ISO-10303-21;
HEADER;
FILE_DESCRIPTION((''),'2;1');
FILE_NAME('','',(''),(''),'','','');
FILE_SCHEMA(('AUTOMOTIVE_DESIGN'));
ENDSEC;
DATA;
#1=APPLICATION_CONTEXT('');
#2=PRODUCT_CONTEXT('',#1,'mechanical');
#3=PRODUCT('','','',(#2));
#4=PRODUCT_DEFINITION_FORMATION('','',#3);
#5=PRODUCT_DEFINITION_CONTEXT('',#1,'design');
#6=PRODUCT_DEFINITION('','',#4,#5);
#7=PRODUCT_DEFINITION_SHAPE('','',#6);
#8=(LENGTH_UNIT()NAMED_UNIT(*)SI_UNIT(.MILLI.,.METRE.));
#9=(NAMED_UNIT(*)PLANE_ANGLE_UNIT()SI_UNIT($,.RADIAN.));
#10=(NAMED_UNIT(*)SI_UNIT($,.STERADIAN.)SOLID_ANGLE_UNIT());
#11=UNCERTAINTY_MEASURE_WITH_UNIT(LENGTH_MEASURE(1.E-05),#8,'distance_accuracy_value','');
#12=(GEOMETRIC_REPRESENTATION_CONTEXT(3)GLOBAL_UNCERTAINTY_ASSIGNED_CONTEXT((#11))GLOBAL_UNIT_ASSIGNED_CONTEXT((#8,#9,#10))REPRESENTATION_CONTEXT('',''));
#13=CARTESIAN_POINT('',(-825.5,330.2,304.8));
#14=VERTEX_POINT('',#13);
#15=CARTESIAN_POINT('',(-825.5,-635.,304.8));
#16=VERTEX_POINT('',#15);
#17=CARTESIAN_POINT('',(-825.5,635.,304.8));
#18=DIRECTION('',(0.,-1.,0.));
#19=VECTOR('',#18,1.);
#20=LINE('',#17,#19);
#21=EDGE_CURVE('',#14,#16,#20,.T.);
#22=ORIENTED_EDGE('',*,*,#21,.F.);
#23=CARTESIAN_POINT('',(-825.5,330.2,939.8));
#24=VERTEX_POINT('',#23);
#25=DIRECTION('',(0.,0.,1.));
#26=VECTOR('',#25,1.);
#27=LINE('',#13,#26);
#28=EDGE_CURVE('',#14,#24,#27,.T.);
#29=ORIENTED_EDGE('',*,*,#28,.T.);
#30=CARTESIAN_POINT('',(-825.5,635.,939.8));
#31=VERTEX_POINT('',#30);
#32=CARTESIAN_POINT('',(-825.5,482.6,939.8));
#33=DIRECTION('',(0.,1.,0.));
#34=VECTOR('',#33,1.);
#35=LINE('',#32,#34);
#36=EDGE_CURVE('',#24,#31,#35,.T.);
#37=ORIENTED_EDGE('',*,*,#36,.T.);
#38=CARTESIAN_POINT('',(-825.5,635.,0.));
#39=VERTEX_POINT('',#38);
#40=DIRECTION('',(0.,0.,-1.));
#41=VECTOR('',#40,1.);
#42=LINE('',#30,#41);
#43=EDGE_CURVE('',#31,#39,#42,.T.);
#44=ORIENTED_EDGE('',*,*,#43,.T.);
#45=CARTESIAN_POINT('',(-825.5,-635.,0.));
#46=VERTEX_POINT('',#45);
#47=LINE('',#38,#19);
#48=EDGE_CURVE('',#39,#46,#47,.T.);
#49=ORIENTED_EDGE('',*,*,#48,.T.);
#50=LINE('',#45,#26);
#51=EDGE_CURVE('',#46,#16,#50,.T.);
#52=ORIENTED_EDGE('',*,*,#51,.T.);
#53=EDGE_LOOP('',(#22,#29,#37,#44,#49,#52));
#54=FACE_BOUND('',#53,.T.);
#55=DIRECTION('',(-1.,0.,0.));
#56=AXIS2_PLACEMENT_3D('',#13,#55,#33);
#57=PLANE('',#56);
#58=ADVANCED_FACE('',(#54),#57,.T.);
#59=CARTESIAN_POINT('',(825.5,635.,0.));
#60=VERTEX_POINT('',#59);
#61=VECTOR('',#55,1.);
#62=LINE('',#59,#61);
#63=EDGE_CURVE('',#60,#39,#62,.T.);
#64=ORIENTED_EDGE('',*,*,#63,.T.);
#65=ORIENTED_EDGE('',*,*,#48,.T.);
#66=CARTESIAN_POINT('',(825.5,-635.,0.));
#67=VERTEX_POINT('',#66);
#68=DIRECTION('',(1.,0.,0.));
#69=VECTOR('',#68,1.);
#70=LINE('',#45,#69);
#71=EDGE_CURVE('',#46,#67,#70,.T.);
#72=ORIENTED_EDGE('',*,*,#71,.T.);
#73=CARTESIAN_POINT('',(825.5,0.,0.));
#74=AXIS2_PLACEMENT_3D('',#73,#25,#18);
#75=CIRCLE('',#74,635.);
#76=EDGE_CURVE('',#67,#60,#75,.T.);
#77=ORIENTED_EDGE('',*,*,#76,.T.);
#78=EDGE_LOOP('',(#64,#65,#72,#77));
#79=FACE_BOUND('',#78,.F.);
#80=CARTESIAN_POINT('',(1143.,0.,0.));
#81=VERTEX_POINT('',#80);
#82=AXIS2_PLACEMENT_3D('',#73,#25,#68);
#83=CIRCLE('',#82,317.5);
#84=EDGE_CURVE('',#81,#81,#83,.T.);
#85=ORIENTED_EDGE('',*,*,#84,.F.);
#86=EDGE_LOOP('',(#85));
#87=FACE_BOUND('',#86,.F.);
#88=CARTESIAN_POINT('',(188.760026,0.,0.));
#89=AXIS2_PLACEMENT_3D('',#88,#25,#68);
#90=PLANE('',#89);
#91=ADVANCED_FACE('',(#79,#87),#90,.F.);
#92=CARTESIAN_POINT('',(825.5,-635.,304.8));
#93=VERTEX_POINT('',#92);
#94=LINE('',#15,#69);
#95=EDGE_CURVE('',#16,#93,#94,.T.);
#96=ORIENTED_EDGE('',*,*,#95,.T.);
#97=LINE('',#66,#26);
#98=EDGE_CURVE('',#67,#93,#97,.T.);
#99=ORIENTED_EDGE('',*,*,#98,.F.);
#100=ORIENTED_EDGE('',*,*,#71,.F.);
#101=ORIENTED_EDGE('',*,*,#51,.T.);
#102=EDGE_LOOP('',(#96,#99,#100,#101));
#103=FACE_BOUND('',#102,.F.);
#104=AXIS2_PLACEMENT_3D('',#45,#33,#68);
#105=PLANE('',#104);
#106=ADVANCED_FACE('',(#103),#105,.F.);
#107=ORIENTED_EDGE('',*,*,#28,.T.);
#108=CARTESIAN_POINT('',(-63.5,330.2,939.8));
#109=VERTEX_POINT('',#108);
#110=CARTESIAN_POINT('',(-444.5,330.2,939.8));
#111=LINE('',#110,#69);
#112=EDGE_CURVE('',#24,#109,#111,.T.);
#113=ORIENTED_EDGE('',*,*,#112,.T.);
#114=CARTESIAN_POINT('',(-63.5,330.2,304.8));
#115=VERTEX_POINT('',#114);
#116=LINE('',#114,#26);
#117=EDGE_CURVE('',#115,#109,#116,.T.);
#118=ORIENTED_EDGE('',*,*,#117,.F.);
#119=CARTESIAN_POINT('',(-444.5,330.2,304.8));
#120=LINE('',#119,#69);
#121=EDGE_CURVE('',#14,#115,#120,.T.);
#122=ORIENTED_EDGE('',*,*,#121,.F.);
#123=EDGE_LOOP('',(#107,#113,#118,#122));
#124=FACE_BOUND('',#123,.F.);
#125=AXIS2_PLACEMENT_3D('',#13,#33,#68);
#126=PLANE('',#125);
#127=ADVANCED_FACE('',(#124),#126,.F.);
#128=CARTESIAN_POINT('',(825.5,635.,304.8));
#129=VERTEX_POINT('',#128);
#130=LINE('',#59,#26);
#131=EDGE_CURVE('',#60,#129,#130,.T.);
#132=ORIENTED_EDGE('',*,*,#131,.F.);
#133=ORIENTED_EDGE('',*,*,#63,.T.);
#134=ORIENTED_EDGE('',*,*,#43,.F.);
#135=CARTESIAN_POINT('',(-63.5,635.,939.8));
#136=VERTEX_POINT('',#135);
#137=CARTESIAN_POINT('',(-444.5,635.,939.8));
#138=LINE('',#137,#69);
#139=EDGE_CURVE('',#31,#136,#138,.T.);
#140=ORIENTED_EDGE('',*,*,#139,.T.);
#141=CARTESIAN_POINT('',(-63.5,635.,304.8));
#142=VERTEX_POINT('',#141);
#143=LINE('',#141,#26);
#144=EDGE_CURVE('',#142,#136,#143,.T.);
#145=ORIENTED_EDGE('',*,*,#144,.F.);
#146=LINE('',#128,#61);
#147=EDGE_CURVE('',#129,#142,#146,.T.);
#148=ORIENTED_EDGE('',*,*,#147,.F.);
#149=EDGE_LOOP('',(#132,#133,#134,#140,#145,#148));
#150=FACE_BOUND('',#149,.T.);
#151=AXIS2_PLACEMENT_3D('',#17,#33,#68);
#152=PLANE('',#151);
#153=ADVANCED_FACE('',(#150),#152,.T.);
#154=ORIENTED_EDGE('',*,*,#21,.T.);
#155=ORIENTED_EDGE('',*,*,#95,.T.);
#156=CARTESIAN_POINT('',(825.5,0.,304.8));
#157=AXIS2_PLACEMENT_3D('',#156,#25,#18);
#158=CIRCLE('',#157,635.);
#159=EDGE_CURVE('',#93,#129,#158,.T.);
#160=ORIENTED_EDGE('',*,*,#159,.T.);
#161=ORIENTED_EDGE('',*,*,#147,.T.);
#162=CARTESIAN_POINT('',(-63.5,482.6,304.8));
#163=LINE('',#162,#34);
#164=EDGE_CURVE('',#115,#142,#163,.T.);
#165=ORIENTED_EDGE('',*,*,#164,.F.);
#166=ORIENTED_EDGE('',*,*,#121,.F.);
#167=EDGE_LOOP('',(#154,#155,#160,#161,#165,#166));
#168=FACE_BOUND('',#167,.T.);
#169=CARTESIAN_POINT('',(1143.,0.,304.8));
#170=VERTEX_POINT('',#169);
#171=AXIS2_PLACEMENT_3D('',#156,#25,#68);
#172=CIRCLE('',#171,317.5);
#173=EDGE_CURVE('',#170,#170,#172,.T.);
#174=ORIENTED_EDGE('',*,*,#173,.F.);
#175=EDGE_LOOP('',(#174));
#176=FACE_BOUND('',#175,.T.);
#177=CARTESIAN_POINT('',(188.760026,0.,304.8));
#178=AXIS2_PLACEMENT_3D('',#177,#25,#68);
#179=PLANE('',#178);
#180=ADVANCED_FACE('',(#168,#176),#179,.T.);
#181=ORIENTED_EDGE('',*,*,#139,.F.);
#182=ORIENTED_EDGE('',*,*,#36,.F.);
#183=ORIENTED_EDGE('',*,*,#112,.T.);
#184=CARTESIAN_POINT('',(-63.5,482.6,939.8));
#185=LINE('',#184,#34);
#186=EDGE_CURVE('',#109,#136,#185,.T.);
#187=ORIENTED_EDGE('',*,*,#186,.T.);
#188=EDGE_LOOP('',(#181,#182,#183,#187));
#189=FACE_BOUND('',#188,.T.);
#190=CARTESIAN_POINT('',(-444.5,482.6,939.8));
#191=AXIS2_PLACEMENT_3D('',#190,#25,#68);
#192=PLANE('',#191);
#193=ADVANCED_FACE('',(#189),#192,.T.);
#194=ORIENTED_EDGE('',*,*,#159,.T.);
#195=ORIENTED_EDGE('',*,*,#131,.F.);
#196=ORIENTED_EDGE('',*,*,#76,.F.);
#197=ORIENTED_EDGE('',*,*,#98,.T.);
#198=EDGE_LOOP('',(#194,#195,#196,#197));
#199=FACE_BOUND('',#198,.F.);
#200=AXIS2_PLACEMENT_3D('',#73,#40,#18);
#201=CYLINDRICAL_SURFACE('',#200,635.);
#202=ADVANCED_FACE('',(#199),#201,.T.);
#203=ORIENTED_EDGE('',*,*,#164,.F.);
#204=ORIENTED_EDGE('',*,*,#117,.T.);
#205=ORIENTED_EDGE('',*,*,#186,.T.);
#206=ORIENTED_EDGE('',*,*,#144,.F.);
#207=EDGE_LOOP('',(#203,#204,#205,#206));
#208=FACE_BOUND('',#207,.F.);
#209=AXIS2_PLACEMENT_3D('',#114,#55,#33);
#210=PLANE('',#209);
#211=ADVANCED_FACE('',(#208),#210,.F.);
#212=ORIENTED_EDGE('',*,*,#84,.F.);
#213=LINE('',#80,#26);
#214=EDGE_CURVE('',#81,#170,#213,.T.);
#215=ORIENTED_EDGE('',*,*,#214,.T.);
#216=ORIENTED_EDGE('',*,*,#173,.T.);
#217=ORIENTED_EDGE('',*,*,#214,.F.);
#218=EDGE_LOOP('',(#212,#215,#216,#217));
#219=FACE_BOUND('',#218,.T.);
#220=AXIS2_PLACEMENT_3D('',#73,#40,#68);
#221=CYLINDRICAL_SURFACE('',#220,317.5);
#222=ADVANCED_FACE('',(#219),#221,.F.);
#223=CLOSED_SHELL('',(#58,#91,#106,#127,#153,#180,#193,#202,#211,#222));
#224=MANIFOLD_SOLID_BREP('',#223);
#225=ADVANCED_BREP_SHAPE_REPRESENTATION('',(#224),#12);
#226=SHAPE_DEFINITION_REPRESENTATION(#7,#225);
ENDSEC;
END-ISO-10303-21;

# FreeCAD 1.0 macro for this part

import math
import FreeCAD as App
import Part
import Sketcher
from FreeCAD import Vector
Q = App.Units.Quantity

doc = App.newDocument("Part")
body = doc.addObject("PartDesign::Body", "Body")

# Sketch on XY plane
sketch1 = body.newObject("Sketcher::SketchObject", "Sketch")
sketch1.AttachmentSupport = (doc.getObject("XY_Plane"), [""])
sketch1.MapMode = "FlatFace"
sketch1.addGeometry([
    Part.LineSegment(Vector(-826, -635, 0), Vector(826, -635, 0)),  # 0
    Part.ArcOfCircle(Part.Circle(Vector(826, 0, 0), Vector(0, 0, 1), 635), math.radians(-90), math.radians(90)),  # 1
    Part.LineSegment(Vector(826, 635, 0), Vector(-826, 635, 0)),  # 2
    Part.LineSegment(Vector(-826, 635, 0), Vector(-826, -635, 0)),  # 3
    Part.Circle(Vector(826, 0, 0), Vector(0, 0, 1), 318),  # 4
], False)
sketch1.addConstraint([
    Sketcher.Constraint("Tangent", 0, 2, 1, 1),
    Sketcher.Constraint("Tangent", 1, 2, 2, 1),
    Sketcher.Constraint("Coincident", 2, 2, 3, 1),
    Sketcher.Constraint("Coincident", 3, 2, 0, 1),
    Sketcher.Constraint("Horizontal", 0),
    Sketcher.Constraint("Horizontal", 2),
    Sketcher.Constraint("Vertical", 3),
    Sketcher.Constraint("Coincident", 4, 3, 1, 3),
    Sketcher.Constraint("Symmetric", 0, 2, 2, 2, -1, 1),
    Sketcher.Constraint("Diameter", 4, Q("25 in")),
    Sketcher.Constraint("Radius", 1, Q("25 in")),
    Sketcher.Constraint("DistanceX", 0, 1, 0, 2, Q("65 in")),
])
pad1 = body.newObject("PartDesign::Pad", "Pad")
pad1.Profile = sketch1
pad1.Length = Q("12 in")

# Sketch on XY plane
sketch2 = body.newObject("Sketcher::SketchObject", "Sketch001")
sketch2.AttachmentSupport = (doc.getObject("XY_Plane"), [""])
sketch2.MapMode = "FlatFace"
sketch2.AttachmentOffset = App.Placement(Vector(0, 0, 12 * 25.4), App.Rotation())
sketch2.addGeometry([
    Part.LineSegment(Vector(-826, 635, 0), Vector(-826, 330, 0)),
    Part.LineSegment(Vector(-826, 330, 0), Vector(-64, 330, 0)),
    Part.LineSegment(Vector(-64, 330, 0), Vector(-64, 635, 0)),
    Part.LineSegment(Vector(-64, 635, 0), Vector(-826, 635, 0)),
], False)
sketch2.addConstraint([
    Sketcher.Constraint("Coincident", 0, 2, 1, 1),
    Sketcher.Constraint("Coincident", 1, 2, 2, 1),
    Sketcher.Constraint("Coincident", 2, 2, 3, 1),
    Sketcher.Constraint("Coincident", 3, 2, 0, 1),
    Sketcher.Constraint("Vertical", 0),
    Sketcher.Constraint("Horizontal", 1),
    Sketcher.Constraint("Vertical", 2),
    Sketcher.Constraint("Horizontal", 3),
    Sketcher.Constraint("DistanceX", 1, 1, 1, 2, Q("30 in")),
    Sketcher.Constraint("DistanceY", 0, 2, 0, 1, Q("12 in")),
    Sketcher.Constraint("DistanceY", -1, 1, 0, 2, Q("13 in")),
    Sketcher.Constraint("DistanceX", 0, 2, -1, 1, Q("32.5 in")),
])
pad2 = body.newObject("PartDesign::Pad", "Pad001")
pad2.Profile = sketch2
pad2.Length = Q("25 in")

doc.recompute()
